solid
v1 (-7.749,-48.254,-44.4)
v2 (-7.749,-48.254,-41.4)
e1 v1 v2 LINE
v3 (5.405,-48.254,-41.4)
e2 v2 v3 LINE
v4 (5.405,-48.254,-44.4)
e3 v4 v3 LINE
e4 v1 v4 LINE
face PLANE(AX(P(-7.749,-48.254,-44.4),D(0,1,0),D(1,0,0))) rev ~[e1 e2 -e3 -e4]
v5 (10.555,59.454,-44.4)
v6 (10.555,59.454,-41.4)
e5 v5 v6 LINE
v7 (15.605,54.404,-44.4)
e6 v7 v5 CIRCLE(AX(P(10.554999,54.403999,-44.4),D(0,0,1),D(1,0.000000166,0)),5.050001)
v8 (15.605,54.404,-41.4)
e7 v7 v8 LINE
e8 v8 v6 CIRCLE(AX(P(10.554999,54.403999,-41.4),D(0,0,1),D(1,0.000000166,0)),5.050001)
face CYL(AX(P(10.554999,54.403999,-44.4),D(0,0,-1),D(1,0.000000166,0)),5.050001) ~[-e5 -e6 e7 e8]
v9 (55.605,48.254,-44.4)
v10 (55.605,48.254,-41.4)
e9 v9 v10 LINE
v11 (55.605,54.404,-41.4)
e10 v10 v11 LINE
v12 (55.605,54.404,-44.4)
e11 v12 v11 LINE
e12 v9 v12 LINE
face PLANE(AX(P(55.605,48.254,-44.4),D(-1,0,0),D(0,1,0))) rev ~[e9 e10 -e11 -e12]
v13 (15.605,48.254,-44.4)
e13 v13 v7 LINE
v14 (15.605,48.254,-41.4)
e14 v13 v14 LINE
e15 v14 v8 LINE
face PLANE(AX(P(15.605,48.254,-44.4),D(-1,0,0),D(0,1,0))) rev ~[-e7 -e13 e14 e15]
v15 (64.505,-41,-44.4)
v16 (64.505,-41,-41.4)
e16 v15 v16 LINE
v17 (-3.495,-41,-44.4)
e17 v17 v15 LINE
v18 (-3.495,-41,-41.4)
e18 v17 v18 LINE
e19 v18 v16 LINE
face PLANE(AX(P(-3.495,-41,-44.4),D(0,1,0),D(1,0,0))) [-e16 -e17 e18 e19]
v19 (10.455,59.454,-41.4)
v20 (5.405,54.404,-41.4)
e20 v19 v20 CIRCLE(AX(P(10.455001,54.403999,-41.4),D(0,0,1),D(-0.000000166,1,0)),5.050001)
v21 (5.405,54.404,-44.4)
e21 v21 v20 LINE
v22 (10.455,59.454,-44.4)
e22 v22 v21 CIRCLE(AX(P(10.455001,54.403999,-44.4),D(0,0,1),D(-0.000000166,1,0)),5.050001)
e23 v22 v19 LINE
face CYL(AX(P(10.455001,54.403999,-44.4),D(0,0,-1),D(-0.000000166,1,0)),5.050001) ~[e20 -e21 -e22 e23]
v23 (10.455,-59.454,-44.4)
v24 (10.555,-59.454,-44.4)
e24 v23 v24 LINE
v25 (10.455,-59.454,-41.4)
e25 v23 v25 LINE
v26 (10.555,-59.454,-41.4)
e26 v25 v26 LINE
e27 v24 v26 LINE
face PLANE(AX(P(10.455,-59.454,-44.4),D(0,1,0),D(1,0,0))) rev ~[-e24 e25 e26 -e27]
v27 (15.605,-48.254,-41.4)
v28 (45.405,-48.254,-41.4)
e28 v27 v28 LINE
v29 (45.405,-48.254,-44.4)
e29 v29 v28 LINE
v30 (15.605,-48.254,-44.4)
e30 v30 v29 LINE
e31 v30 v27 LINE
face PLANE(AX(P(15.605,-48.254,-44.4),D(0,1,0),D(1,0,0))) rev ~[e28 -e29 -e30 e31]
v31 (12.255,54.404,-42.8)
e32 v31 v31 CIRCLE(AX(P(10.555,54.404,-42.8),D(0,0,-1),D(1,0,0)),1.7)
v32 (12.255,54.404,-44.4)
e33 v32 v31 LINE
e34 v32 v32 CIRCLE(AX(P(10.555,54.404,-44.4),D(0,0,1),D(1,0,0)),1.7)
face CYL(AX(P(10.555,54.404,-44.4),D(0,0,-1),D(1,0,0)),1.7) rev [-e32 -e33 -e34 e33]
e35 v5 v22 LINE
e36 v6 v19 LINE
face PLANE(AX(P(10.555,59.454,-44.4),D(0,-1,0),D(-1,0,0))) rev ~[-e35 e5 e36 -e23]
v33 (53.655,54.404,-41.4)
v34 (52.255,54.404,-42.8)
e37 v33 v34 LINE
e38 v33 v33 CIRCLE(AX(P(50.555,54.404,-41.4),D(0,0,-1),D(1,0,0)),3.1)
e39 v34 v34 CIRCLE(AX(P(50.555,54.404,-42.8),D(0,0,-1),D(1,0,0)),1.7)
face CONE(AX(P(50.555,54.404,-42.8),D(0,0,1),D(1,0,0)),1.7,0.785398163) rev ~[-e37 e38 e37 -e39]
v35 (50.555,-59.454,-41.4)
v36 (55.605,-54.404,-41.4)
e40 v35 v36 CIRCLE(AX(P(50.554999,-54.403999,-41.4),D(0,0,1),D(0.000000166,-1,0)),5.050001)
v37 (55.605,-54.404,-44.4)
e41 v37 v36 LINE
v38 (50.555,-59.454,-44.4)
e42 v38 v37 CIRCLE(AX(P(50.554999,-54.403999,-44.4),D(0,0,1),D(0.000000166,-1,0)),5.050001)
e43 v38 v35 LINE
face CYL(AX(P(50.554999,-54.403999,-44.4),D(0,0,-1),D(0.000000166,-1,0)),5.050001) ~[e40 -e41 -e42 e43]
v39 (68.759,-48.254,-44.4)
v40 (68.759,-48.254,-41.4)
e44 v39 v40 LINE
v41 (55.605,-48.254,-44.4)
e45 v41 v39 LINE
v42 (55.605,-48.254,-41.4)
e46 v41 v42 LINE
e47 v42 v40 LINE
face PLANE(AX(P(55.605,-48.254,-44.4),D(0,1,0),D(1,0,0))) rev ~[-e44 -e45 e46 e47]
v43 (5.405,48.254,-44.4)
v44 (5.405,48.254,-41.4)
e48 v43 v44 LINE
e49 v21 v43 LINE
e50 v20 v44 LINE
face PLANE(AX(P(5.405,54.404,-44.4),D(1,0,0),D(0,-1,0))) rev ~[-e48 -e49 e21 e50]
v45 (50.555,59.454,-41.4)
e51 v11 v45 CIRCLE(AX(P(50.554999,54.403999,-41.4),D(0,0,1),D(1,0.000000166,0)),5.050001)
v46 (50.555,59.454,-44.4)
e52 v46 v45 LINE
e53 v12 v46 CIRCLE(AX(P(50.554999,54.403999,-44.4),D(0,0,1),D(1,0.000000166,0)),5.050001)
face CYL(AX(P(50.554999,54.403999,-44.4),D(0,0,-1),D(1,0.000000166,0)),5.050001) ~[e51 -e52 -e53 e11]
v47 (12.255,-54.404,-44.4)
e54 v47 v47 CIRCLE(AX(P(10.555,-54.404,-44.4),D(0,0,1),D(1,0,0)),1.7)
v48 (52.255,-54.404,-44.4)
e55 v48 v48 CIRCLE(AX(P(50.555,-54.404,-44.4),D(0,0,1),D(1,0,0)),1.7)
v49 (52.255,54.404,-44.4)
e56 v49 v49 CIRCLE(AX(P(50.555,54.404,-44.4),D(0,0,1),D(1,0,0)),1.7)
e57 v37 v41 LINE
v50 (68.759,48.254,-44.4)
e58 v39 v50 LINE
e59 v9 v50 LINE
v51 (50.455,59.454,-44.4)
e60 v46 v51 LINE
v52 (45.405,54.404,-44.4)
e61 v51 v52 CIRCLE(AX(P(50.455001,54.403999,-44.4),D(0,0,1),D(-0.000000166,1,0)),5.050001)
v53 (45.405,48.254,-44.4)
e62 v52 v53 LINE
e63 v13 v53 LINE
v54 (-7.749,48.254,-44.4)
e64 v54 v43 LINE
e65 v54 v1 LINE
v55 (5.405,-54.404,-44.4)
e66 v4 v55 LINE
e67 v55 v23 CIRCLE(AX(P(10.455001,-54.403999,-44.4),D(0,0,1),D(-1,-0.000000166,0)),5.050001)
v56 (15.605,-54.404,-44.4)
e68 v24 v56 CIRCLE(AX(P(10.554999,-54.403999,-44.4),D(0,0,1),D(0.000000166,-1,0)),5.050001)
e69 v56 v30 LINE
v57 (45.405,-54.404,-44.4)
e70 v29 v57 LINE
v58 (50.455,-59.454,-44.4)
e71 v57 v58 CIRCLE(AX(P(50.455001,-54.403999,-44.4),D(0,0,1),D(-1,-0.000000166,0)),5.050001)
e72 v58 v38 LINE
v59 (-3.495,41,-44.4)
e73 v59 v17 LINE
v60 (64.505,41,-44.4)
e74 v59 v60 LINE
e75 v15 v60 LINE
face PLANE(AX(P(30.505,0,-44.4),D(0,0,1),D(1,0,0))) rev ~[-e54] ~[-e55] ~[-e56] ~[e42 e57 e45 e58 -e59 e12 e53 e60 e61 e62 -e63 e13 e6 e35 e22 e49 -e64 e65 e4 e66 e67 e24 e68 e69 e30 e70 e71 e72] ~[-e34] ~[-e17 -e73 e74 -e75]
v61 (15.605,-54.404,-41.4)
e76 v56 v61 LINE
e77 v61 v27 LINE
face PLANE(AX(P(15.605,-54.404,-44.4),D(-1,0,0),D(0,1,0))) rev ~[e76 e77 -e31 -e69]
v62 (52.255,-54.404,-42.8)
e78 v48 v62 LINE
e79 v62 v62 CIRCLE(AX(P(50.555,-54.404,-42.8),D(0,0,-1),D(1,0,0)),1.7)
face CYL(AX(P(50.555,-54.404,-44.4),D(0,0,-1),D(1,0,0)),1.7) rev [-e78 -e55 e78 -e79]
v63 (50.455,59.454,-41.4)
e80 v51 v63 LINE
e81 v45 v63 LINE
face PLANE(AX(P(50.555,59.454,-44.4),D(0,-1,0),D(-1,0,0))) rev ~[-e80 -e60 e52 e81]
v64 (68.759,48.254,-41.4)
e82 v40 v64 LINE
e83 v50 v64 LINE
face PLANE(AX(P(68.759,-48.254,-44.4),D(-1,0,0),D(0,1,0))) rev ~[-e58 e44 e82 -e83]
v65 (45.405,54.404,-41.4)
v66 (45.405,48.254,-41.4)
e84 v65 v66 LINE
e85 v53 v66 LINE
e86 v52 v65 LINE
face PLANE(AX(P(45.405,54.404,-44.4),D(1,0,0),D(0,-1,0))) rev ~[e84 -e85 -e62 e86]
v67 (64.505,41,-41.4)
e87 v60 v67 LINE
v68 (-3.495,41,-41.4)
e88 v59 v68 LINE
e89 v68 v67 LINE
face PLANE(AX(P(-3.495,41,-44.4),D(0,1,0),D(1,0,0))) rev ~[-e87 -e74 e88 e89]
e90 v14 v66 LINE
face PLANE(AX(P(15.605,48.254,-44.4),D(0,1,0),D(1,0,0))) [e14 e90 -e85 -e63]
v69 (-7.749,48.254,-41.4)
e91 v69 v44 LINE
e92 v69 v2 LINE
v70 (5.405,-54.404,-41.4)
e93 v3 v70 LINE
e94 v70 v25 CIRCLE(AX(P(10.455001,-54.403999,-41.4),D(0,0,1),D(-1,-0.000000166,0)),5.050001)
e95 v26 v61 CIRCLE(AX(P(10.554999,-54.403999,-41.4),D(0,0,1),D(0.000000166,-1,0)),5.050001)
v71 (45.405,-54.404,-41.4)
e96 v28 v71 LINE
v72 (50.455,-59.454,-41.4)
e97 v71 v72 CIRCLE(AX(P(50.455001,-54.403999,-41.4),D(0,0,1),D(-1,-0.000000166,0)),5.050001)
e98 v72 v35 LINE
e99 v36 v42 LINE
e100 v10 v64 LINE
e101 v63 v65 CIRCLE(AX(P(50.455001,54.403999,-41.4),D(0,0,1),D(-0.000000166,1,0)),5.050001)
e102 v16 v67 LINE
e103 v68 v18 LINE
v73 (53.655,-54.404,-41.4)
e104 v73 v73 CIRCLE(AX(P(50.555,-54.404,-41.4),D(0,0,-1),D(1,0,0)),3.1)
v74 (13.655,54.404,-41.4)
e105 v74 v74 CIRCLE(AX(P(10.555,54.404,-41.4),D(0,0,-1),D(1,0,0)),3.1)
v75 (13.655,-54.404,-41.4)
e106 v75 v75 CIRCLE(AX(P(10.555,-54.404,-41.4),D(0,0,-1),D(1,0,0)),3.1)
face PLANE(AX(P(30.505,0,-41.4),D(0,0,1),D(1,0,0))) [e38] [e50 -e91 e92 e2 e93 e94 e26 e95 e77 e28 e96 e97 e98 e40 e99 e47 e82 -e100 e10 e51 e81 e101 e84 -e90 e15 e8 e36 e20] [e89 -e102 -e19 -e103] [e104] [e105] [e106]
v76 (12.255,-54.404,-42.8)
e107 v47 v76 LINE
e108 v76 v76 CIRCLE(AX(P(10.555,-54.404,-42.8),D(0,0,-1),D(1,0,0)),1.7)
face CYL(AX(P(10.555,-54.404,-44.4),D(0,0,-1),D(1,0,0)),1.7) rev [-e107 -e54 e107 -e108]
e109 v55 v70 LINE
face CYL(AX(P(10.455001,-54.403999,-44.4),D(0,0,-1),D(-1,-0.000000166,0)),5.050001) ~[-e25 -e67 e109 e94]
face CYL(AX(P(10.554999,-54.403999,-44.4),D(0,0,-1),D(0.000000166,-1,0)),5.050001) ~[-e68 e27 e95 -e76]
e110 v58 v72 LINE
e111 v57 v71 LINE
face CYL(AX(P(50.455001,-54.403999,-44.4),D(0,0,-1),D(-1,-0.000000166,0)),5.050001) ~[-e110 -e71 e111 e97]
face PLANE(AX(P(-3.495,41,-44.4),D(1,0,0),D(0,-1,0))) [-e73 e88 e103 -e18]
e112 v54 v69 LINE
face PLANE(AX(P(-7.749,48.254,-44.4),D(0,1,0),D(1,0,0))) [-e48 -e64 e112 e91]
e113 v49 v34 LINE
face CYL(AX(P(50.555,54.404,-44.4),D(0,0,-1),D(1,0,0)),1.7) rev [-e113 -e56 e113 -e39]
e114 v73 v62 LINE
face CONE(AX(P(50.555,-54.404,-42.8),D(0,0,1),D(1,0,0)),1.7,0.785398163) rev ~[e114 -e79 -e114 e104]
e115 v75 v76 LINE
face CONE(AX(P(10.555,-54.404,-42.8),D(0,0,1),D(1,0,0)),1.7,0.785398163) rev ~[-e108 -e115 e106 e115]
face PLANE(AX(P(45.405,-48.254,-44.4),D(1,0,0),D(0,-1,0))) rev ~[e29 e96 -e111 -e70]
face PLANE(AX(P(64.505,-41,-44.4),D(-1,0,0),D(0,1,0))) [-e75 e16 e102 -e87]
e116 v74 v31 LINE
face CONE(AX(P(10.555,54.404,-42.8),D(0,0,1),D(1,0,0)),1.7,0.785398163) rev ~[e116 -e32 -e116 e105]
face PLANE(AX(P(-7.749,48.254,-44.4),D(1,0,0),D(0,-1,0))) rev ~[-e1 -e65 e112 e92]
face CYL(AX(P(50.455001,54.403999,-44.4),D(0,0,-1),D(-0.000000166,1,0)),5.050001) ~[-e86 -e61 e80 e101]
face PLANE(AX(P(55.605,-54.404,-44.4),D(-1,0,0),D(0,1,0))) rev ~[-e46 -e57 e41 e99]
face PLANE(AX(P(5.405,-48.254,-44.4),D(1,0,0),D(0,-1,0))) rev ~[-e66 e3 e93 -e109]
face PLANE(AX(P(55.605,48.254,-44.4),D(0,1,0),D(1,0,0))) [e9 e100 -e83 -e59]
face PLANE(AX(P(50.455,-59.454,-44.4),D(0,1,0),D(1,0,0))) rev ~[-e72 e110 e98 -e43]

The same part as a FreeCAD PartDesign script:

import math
import FreeCAD as App
import Part
import Sketcher


def edges_at(feature, points):
    """Names of the edges that pass closest to the given points."""
    edges = feature.Shape.Edges
    near = lambda p: min(range(len(edges)), key=lambda i: edges[i].distToShape(Part.Vertex(*p))[0])
    return sorted({f"Edge{near(p) + 1}" for p in points})

doc = App.newDocument("Part")
params = doc.addObject("Spreadsheet::Sheet", "Params")
for row, (alias, value) in enumerate([
    ("sketch1_diameter", "3.4 mm"),
    ("pad1_length", "4 mm"),
    ("sketch2_width", "68 mm"),
    ("sketch2_height", "82 mm"),
    ("sketch2_radius", "5.050001 mm"),
    ("sketch2_width2", "0.1 mm"),
    ("sketch2_width3", "29.8 mm"),
    ("pad2_length", "3 mm"),
    ("chamfer_size", "1.4 mm"),
], start=1):
    params.set(f"A{row}", alias)
    params.set(f"B{row}", "=" + value)
    params.setAlias(f"B{row}", alias)

body = doc.addObject("PartDesign::Body", "Body")
body.AllowCompound = True

# Sketch on XY plane
sketch1 = body.newObject("Sketcher::SketchObject", "Sketch")
sketch1.AttachmentSupport = (doc.getObject("XY_Plane"), [""])
sketch1.MapMode = "FlatFace"
sketch1.addGeometry(Part.Circle(App.Vector(10.555, 54.404, 0), App.Vector(0, 0, 1), 1.7), False)
sketch1.addGeometry(Part.Circle(App.Vector(50.555, 54.404, 0), App.Vector(0, 0, 1), 1.7), False)
sketch1.addGeometry(Part.Circle(App.Vector(10.555, -54.404, 0), App.Vector(0, 0, 1), 1.7), False)
sketch1.addGeometry(Part.Circle(App.Vector(50.555, -54.404, 0), App.Vector(0, 0, 1), 1.7), False)
sketch1.addConstraint(Sketcher.Constraint("Equal", 0, 1))
sketch1.addConstraint(Sketcher.Constraint("Equal", 1, 2))
sketch1.addConstraint(Sketcher.Constraint("Equal", 2, 3))
sketch1.addConstraint(Sketcher.Constraint("Symmetric", 0, 3, 2, 3, -1))
sketch1.addConstraint(Sketcher.Constraint("Symmetric", 1, 3, 3, 3, -1))
sketch1.addConstraint(Sketcher.Constraint("Horizontal", 0, 3, 1, 3))
sketch1.addConstraint(Sketcher.Constraint("Diameter", 0, 3.4))
sketch1.addConstraint(Sketcher.Constraint("DistanceX", 0, 3, 1, 3, 40.0))
sketch1.addConstraint(Sketcher.Constraint("DistanceX", -1, 1, 0, 3, 10.555))
sketch1.addConstraint(Sketcher.Constraint("DistanceY", -1, 1, 0, 3, 54.404))
sketch1.setExpression("Constraints[6]", "Params.sketch1_diameter")
pad1 = body.newObject("PartDesign::Pad", "Pad")
pad1.Profile = sketch1
pad1.setExpression("Length", "Params.pad1_length")
body2 = doc.addObject("PartDesign::Body", "Body001")

# Sketch on XY plane
sketch2 = body2.newObject("Sketcher::SketchObject", "Sketch001")
sketch2.AttachmentSupport = (doc.getObject("XY_Plane001"), [""])
sketch2.MapMode = "FlatFace"
sketch2.addGeometry(Part.LineSegment(App.Vector(68.759, -48.254, 0), App.Vector(68.759, 48.254, 0)), False)
sketch2.addGeometry(Part.LineSegment(App.Vector(68.759, 48.254, 0), App.Vector(55.605, 48.254, 0)), False)
sketch2.addGeometry(Part.LineSegment(App.Vector(55.605, 48.254, 0), App.Vector(55.605, 54.404, 0)), False)
sketch2.addGeometry(Part.ArcOfCircle(Part.Circle(App.Vector(50.554999, 54.403999, 0), App.Vector(0, 0, 1), 5.050001), math.radians(0.000009), math.radians(89.999991)), False)
sketch2.addGeometry(Part.LineSegment(App.Vector(50.555, 59.454, 0), App.Vector(50.455, 59.454, 0)), False)
sketch2.addGeometry(Part.ArcOfCircle(Part.Circle(App.Vector(50.455001, 54.403999, 0), App.Vector(0, 0, 1), 5.050001), math.radians(90.000009), math.radians(179.999991)), False)
sketch2.addGeometry(Part.LineSegment(App.Vector(45.405, 54.404, 0), App.Vector(45.405, 48.254, 0)), False)
sketch2.addGeometry(Part.LineSegment(App.Vector(45.405, 48.254, 0), App.Vector(15.605, 48.254, 0)), False)
sketch2.addGeometry(Part.LineSegment(App.Vector(15.605, 48.254, 0), App.Vector(15.605, 54.404, 0)), False)
sketch2.addGeometry(Part.ArcOfCircle(Part.Circle(App.Vector(10.554999, 54.403999, 0), App.Vector(0, 0, 1), 5.050001), math.radians(0.000009), math.radians(89.999991)), False)
sketch2.addGeometry(Part.LineSegment(App.Vector(10.555, 59.454, 0), App.Vector(10.455, 59.454, 0)), False)
sketch2.addGeometry(Part.ArcOfCircle(Part.Circle(App.Vector(10.455001, 54.403999, 0), App.Vector(0, 0, 1), 5.050001), math.radians(90.000009), math.radians(179.999991)), False)
sketch2.addGeometry(Part.LineSegment(App.Vector(5.405, 54.404, 0), App.Vector(5.405, 48.254, 0)), False)
sketch2.addGeometry(Part.LineSegment(App.Vector(5.405, 48.254, 0), App.Vector(-7.749, 48.254, 0)), False)
sketch2.addGeometry(Part.LineSegment(App.Vector(-7.749, 48.254, 0), App.Vector(-7.749, -48.254, 0)), False)
sketch2.addGeometry(Part.LineSegment(App.Vector(-7.749, -48.254, 0), App.Vector(5.405, -48.254, 0)), False)
sketch2.addGeometry(Part.LineSegment(App.Vector(5.405, -48.254, 0), App.Vector(5.405, -54.404, 0)), False)
sketch2.addGeometry(Part.ArcOfCircle(Part.Circle(App.Vector(10.455001, -54.403999, 0), App.Vector(0, 0, 1), 5.050001), math.radians(-179.999991), math.radians(-90.000009)), False)
sketch2.addGeometry(Part.LineSegment(App.Vector(10.455, -59.454, 0), App.Vector(10.555, -59.454, 0)), False)
sketch2.addGeometry(Part.ArcOfCircle(Part.Circle(App.Vector(10.554999, -54.403999, 0), App.Vector(0, 0, 1), 5.050001), math.radians(-89.999991), math.radians(-0.000009)), False)
sketch2.addGeometry(Part.LineSegment(App.Vector(15.605, -54.404, 0), App.Vector(15.605, -48.254, 0)), False)
sketch2.addGeometry(Part.LineSegment(App.Vector(15.605, -48.254, 0), App.Vector(45.405, -48.254, 0)), False)
sketch2.addGeometry(Part.LineSegment(App.Vector(45.405, -48.254, 0), App.Vector(45.405, -54.404, 0)), False)
sketch2.addGeometry(Part.ArcOfCircle(Part.Circle(App.Vector(50.455001, -54.403999, 0), App.Vector(0, 0, 1), 5.050001), math.radians(-179.999991), math.radians(-90.000009)), False)
sketch2.addGeometry(Part.LineSegment(App.Vector(50.455, -59.454, 0), App.Vector(50.555, -59.454, 0)), False)
sketch2.addGeometry(Part.ArcOfCircle(Part.Circle(App.Vector(50.554999, -54.403999, 0), App.Vector(0, 0, 1), 5.050001), math.radians(-89.999991), math.radians(-0.000009)), False)
sketch2.addGeometry(Part.LineSegment(App.Vector(55.605, -54.404, 0), App.Vector(55.605, -48.254, 0)), False)
sketch2.addGeometry(Part.LineSegment(App.Vector(55.605, -48.254, 0), App.Vector(68.759, -48.254, 0)), False)
sketch2.addGeometry(Part.LineSegment(App.Vector(-3.495, -41, 0), App.Vector(-3.495, 41, 0)), False)
sketch2.addGeometry(Part.LineSegment(App.Vector(-3.495, 41, 0), App.Vector(64.505, 41, 0)), False)
sketch2.addGeometry(Part.LineSegment(App.Vector(64.505, 41, 0), App.Vector(64.505, -41, 0)), False)
sketch2.addGeometry(Part.LineSegment(App.Vector(64.505, -41, 0), App.Vector(-3.495, -41, 0)), False)
sketch2.addConstraint(Sketcher.Constraint("Coincident", 0, 2, 1, 1))
sketch2.addConstraint(Sketcher.Constraint("Coincident", 1, 2, 2, 1))
sketch2.addConstraint(Sketcher.Constraint("Tangent", 2, 2, 3, 1))
sketch2.addConstraint(Sketcher.Constraint("Tangent", 3, 2, 4, 1))
sketch2.addConstraint(Sketcher.Constraint("Tangent", 4, 2, 5, 1))
sketch2.addConstraint(Sketcher.Constraint("Tangent", 5, 2, 6, 1))
sketch2.addConstraint(Sketcher.Constraint("Coincident", 6, 2, 7, 1))
sketch2.addConstraint(Sketcher.Constraint("Coincident", 7, 2, 8, 1))
sketch2.addConstraint(Sketcher.Constraint("Tangent", 8, 2, 9, 1))
sketch2.addConstraint(Sketcher.Constraint("Tangent", 9, 2, 10, 1))
sketch2.addConstraint(Sketcher.Constraint("Tangent", 10, 2, 11, 1))
sketch2.addConstraint(Sketcher.Constraint("Tangent", 11, 2, 12, 1))
sketch2.addConstraint(Sketcher.Constraint("Coincident", 12, 2, 13, 1))
sketch2.addConstraint(Sketcher.Constraint("Coincident", 13, 2, 14, 1))
sketch2.addConstraint(Sketcher.Constraint("Coincident", 14, 2, 15, 1))
sketch2.addConstraint(Sketcher.Constraint("Coincident", 15, 2, 16, 1))
sketch2.addConstraint(Sketcher.Constraint("Tangent", 16, 2, 17, 1))
sketch2.addConstraint(Sketcher.Constraint("Tangent", 17, 2, 18, 1))
sketch2.addConstraint(Sketcher.Constraint("Tangent", 18, 2, 19, 1))
sketch2.addConstraint(Sketcher.Constraint("Tangent", 19, 2, 20, 1))
sketch2.addConstraint(Sketcher.Constraint("Coincident", 20, 2, 21, 1))
sketch2.addConstraint(Sketcher.Constraint("Coincident", 21, 2, 22, 1))
sketch2.addConstraint(Sketcher.Constraint("Tangent", 22, 2, 23, 1))
sketch2.addConstraint(Sketcher.Constraint("Tangent", 23, 2, 24, 1))
sketch2.addConstraint(Sketcher.Constraint("Tangent", 24, 2, 25, 1))
sketch2.addConstraint(Sketcher.Constraint("Tangent", 25, 2, 26, 1))
sketch2.addConstraint(Sketcher.Constraint("Coincident", 26, 2, 27, 1))
sketch2.addConstraint(Sketcher.Constraint("Coincident", 27, 2, 0, 1))
sketch2.addConstraint(Sketcher.Constraint("Coincident", 28, 2, 29, 1))
sketch2.addConstraint(Sketcher.Constraint("Coincident", 29, 2, 30, 1))
sketch2.addConstraint(Sketcher.Constraint("Coincident", 30, 2, 31, 1))
sketch2.addConstraint(Sketcher.Constraint("Coincident", 31, 2, 28, 1))
sketch2.addConstraint(Sketcher.Constraint("Vertical", 0))
sketch2.addConstraint(Sketcher.Constraint("Horizontal", 1))
sketch2.addConstraint(Sketcher.Constraint("Vertical", 2))
sketch2.addConstraint(Sketcher.Constraint("Horizontal", 4))
sketch2.addConstraint(Sketcher.Constraint("Vertical", 6))
sketch2.addConstraint(Sketcher.Constraint("Horizontal", 7))
sketch2.addConstraint(Sketcher.Constraint("Vertical", 8))
sketch2.addConstraint(Sketcher.Constraint("Horizontal", 10))
sketch2.addConstraint(Sketcher.Constraint("Vertical", 12))
sketch2.addConstraint(Sketcher.Constraint("Horizontal", 13))
sketch2.addConstraint(Sketcher.Constraint("Vertical", 14))
sketch2.addConstraint(Sketcher.Constraint("Horizontal", 15))
sketch2.addConstraint(Sketcher.Constraint("Vertical", 16))
sketch2.addConstraint(Sketcher.Constraint("Horizontal", 18))
sketch2.addConstraint(Sketcher.Constraint("Vertical", 20))
sketch2.addConstraint(Sketcher.Constraint("Horizontal", 21))
sketch2.addConstraint(Sketcher.Constraint("Vertical", 22))
sketch2.addConstraint(Sketcher.Constraint("Horizontal", 24))
sketch2.addConstraint(Sketcher.Constraint("Vertical", 26))
sketch2.addConstraint(Sketcher.Constraint("Horizontal", 27))
sketch2.addConstraint(Sketcher.Constraint("Vertical", 28))
sketch2.addConstraint(Sketcher.Constraint("Horizontal", 29))
sketch2.addConstraint(Sketcher.Constraint("Vertical", 30))
sketch2.addConstraint(Sketcher.Constraint("Horizontal", 31))
sketch2.addConstraint(Sketcher.Constraint("Equal", 3, 5))
sketch2.addConstraint(Sketcher.Constraint("Equal", 5, 9))
sketch2.addConstraint(Sketcher.Constraint("Equal", 9, 11))
sketch2.addConstraint(Sketcher.Constraint("Equal", 11, 17))
sketch2.addConstraint(Sketcher.Constraint("Equal", 17, 19))
sketch2.addConstraint(Sketcher.Constraint("Equal", 19, 23))
sketch2.addConstraint(Sketcher.Constraint("Equal", 23, 25))
sketch2.addConstraint(Sketcher.Constraint("Symmetric", 11, 3, 17, 3, -1))
sketch2.addConstraint(Sketcher.Constraint("Symmetric", 5, 3, 23, 3, -1))
sketch2.addConstraint(Sketcher.Constraint("Symmetric", 7, 2, 20, 2, -1))
sketch2.addConstraint(Sketcher.Constraint("Symmetric", 1, 2, 26, 2, -1))
sketch2.addConstraint(Sketcher.Constraint("Horizontal", 5, 3, 9, 3))
sketch2.addConstraint(Sketcher.Constraint("Horizontal", 1, 2, 6, 2))
sketch2.addConstraint(Sketcher.Constraint("Horizontal", 7, 2, 12, 2))
sketch2.addConstraint(Sketcher.Constraint("Horizontal", 15, 2, 20, 2))
sketch2.addConstraint(Sketcher.Constraint("Equal", 4, 10))
sketch2.addConstraint(Sketcher.Constraint("Equal", 1, 13))
sketch2.addConstraint(Sketcher.Constraint("DistanceX", 29, 1, 29, 2, 68.0))
sketch2.addConstraint(Sketcher.Constraint("DistanceY", 28, 1, 28, 2, 82.0))
sketch2.addConstraint(Sketcher.Constraint("Radius", 3, 5.050001))
sketch2.addConstraint(Sketcher.Constraint("DistanceX", 4, 2, 4, 1, 0.1))
sketch2.addConstraint(Sketcher.Constraint("DistanceX", 7, 2, 7, 1, 29.8))
sketch2.addConstraint(Sketcher.Constraint("DistanceY", -1, 1, 28, 2, 41.0))
sketch2.addConstraint(Sketcher.Constraint("DistanceY", 2, 1, 2, 2, 6.15))
sketch2.addConstraint(Sketcher.Constraint("DistanceX", 28, 2, 12, 2, 8.9))
sketch2.addConstraint(Sketcher.Constraint("DistanceX", 1, 2, 1, 1, 13.154))
sketch2.addConstraint(Sketcher.Constraint("DistanceY", 0, 1, 0, 2, 96.508))
sketch2.addConstraint(Sketcher.Constraint("DistanceX", -1, 1, 3, 3, 50.554999))
sketch2.setExpression("Constraints[73]", "Params.sketch2_width")
sketch2.setExpression("Constraints[74]", "Params.sketch2_height")
sketch2.setExpression("Constraints[75]", "Params.sketch2_radius")
sketch2.setExpression("Constraints[76]", "Params.sketch2_width2")
sketch2.setExpression("Constraints[77]", "Params.sketch2_width3")
pad2 = body2.newObject("PartDesign::Pad", "Pad001")
pad2.Profile = sketch2
pad2.setExpression("Length", "Params.pad2_length")
doc.recompute()

boolean = body2.newObject("PartDesign::Boolean", "Boolean")
boolean.Type = "Cut"
boolean.addObjects([body])
doc.recompute()

chamfer = body2.newObject("PartDesign::Chamfer", "Chamfer")
chamfer.Base = (boolean, edges_at(boolean, [
    (8.855, 54.404, 3),
    (48.855, 54.404, 3),
    (8.855, -54.404, 3),
    (48.855, -54.404, 3),
]))
chamfer.setExpression("Size", "Params.chamfer_size")
body3 = doc.addObject("PartDesign::Body", "Body002")
doc.recompute()

body2.Placement = App.Placement(App.Vector(0, 0, -44.4), App.Rotation(App.Vector(0, 0, 1), 0))
boolean2 = body3.newObject("PartDesign::Boolean", "Boolean001")
boolean2.Type = "Fuse"
boolean2.addObjects([body2])

doc.recompute()
